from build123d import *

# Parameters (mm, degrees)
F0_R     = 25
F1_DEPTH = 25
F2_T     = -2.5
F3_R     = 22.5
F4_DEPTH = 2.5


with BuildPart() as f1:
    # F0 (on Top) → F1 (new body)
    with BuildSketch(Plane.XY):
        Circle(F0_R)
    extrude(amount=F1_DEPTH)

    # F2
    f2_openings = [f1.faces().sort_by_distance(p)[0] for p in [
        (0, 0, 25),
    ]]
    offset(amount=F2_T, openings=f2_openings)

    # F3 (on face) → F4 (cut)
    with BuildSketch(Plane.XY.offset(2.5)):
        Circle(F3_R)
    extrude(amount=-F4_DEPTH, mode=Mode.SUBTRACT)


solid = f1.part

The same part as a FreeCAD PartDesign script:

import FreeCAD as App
import Part
import Sketcher
from FreeCAD import Vector
Q = App.Units.Quantity


def faces_at(feature, points):
    """Names of the faces that lie closest to the given points."""
    faces = feature.Shape.Faces
    near = lambda p: min(range(len(faces)), key=lambda i: faces[i].distToShape(Part.Vertex(*p))[0])
    return sorted({f"Face{near(p) + 1}" for p in points})

doc = App.newDocument("Part")
body = doc.addObject("PartDesign::Body", "Body")

# Sketch on XY plane
sketch1 = body.newObject("Sketcher::SketchObject", "Sketch")
sketch1.AttachmentSupport = (doc.getObject("XY_Plane"), [""])
sketch1.MapMode = "FlatFace"
sketch1.addGeometry(Part.Circle(Vector(0, 0, 0), Vector(0, 0, 1), 25), False)
sketch1.addConstraint([
    Sketcher.Constraint("Coincident", 0, 3, -1, 1),
    Sketcher.Constraint("Diameter", 0, Q("50 mm")),
])
pad1 = body.newObject("PartDesign::Pad", "Pad")
pad1.Profile = sketch1
pad1.Length = 25
doc.recompute()

thickness = body.newObject("PartDesign::Thickness", "Thickness")
thickness.Base = (pad1, faces_at(pad1, [(0, 0, 25)]))
thickness.Value = 2.5
thickness.Reversed = True
thickness.Join = "Arc"

# Sketch on XY plane
sketch2 = body.newObject("Sketcher::SketchObject", "Sketch001")
sketch2.AttachmentSupport = (doc.getObject("XY_Plane"), [""])
sketch2.MapMode = "FlatFace"
sketch2.AttachmentOffset = App.Placement(Vector(0, 0, 2.5), App.Rotation())
sketch2.addGeometry(Part.Circle(Vector(0, 0, 0), Vector(0, 0, 1), 22), False)
sketch2.addConstraint([
    Sketcher.Constraint("Coincident", 0, 3, -1, 1),
    Sketcher.Constraint("Diameter", 0, Q("45 mm")),
])
pocket1 = body.newObject("PartDesign::Pocket", "Pocket")
pocket1.Profile = sketch2
pocket1.Length = 2.5

doc.recompute()
